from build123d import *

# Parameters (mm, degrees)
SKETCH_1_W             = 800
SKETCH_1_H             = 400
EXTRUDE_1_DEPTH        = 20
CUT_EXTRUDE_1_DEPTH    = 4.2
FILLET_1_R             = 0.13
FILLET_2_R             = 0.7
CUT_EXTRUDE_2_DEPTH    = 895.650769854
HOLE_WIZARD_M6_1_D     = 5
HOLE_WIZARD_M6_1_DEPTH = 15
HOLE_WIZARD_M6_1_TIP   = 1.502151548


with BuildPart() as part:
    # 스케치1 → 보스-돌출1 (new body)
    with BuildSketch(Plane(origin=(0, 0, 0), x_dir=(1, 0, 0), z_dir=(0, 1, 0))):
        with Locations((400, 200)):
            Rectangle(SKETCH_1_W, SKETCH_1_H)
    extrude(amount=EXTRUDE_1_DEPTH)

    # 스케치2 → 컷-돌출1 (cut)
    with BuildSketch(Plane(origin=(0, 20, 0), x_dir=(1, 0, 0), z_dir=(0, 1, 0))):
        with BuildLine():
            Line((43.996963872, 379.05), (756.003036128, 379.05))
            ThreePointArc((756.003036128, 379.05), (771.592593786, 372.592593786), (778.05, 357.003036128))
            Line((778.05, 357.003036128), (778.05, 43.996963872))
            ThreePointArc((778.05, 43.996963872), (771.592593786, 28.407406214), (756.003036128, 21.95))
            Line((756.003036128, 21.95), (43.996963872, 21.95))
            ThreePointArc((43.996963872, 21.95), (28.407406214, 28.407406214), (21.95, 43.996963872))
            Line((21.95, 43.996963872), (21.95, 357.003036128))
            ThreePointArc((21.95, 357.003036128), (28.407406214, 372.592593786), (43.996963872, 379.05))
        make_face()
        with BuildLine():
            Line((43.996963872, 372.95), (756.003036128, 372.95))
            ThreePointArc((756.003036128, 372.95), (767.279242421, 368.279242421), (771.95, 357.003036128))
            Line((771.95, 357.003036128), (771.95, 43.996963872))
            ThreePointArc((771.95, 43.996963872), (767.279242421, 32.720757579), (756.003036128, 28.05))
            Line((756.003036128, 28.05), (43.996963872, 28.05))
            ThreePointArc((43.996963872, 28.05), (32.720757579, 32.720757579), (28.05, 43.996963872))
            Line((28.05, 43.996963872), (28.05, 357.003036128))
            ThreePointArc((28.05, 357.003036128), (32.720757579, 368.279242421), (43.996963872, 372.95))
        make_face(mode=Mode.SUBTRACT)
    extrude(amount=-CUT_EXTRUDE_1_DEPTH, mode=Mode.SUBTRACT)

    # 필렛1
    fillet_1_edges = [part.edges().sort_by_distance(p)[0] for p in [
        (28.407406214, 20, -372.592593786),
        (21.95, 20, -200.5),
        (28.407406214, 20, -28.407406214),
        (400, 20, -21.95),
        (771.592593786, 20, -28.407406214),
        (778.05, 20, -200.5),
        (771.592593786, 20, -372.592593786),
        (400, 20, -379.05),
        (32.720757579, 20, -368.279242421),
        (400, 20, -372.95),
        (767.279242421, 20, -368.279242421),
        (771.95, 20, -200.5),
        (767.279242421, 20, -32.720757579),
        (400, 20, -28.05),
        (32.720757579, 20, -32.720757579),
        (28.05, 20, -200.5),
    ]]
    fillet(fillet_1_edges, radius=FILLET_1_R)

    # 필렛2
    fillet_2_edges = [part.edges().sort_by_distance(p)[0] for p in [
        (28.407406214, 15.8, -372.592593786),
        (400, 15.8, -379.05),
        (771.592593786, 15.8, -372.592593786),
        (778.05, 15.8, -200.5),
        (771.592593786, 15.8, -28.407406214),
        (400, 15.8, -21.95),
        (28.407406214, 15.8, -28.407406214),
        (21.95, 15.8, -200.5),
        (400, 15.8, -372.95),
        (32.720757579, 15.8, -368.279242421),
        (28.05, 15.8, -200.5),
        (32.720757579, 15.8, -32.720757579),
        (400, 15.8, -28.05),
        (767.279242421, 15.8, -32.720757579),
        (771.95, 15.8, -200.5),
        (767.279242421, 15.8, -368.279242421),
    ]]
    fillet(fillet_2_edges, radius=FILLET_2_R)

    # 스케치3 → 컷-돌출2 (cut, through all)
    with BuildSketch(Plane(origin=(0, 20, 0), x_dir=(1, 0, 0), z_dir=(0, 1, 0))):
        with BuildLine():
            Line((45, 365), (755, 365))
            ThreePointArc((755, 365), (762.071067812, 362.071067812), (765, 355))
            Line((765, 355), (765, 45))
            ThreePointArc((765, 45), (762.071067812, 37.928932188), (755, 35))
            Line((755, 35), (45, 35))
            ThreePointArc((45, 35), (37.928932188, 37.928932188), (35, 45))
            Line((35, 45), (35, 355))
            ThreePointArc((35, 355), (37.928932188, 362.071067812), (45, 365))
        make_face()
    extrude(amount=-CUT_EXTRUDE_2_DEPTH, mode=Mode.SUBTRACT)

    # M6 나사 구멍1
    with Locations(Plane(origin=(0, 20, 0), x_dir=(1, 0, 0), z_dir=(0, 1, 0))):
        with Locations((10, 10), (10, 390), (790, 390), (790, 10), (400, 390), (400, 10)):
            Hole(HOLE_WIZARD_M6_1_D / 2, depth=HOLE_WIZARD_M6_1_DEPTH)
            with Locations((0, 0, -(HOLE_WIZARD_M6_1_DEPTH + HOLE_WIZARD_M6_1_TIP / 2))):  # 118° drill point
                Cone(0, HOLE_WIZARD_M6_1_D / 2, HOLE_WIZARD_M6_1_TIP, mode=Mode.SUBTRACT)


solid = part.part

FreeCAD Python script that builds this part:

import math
import FreeCAD as App
import Part
import Sketcher

V = App.Vector


def edges_at(feature, points):
    """Names of the edges that pass closest to the given points."""
    edges = feature.Shape.Edges
    near = lambda p: min(range(len(edges)), key=lambda i: edges[i].distToShape(Part.Vertex(*p))[0])
    return sorted({f"Edge{near(p) + 1}" for p in points})

doc = App.newDocument("Part")
body = doc.addObject("PartDesign::Body", "Body")

# Sketch on XZ plane
sketch1 = doc.addObject("Sketcher::SketchObject", "Sketch")
body.addObject(sketch1)
sketch1.AttachmentSupport = (doc.XZ_Plane, [""])
sketch1.MapMode = "FlatFace"
sketch1.addGeometry([
    Part.LineSegment(V(0, -400, 0), V(0, 0, 0)),
    Part.LineSegment(V(0, 0, 0), V(800, 0, 0)),
    Part.LineSegment(V(800, 0, 0), V(800, -400, 0)),
    Part.LineSegment(V(800, -400, 0), V(0, -400, 0)),
], False)
sketch1.addConstraint([
    Sketcher.Constraint("Coincident", 0, 2, 1, 1),
    Sketcher.Constraint("Coincident", 1, 2, 2, 1),
    Sketcher.Constraint("Coincident", 2, 2, 3, 1),
    Sketcher.Constraint("Coincident", 3, 2, 0, 1),
    Sketcher.Constraint("Vertical", 0),
    Sketcher.Constraint("Horizontal", 1),
    Sketcher.Constraint("Vertical", 2),
    Sketcher.Constraint("Horizontal", 3),
    Sketcher.Constraint("Coincident", 0, 2, -1, 1),
    Sketcher.Constraint("DistanceX", 1, 1, 1, 2, 800.0),
    Sketcher.Constraint("DistanceY", 0, 1, 0, 2, 400.0),
])
pad1 = doc.addObject("PartDesign::Pad", "Pad")
body.addObject(pad1)
pad1.Profile = sketch1
pad1.Length = 20
pad1.Reversed = True

# Sketch on XZ plane
sketch2 = doc.addObject("Sketcher::SketchObject", "Sketch001")
body.addObject(sketch2)
sketch2.AttachmentSupport = (doc.XZ_Plane, [""])
sketch2.MapMode = "FlatFace"
sketch2.AttachmentOffset = App.Placement(V(0, 0, -20), App.Rotation())
sketch2.addGeometry([
    Part.LineSegment(V(756.003036, -379.05, 0), V(43.996964, -379.05, 0)),  # 0
    Part.ArcOfCircle(Part.Circle(V(43.996964, -357.003036, 0), V(0, 0, 1), 22.046964), math.radians(-180), math.radians(-90)),  # 1
    Part.LineSegment(V(21.95, -357.003036, 0), V(21.95, -43.996964, 0)),  # 2
    Part.ArcOfCircle(Part.Circle(V(43.996964, -43.996964, 0), V(0, 0, 1), 22.046964), math.radians(90), math.radians(180)),  # 3
    Part.LineSegment(V(43.996964, -21.95, 0), V(756.003036, -21.95, 0)),  # 4
    Part.ArcOfCircle(Part.Circle(V(756.003036, -43.996964, 0), V(0, 0, 1), 22.046964), math.radians(0), math.radians(90)),  # 5
    Part.LineSegment(V(778.05, -43.996964, 0), V(778.05, -357.003036, 0)),  # 6
    Part.ArcOfCircle(Part.Circle(V(756.003036, -357.003036, 0), V(0, 0, 1), 22.046964), math.radians(-90), math.radians(0)),  # 7
    Part.LineSegment(V(43.996964, -372.95, 0), V(756.003036, -372.95, 0)),  # 8
    Part.ArcOfCircle(Part.Circle(V(756.003036, -357.003036, 0), V(0, 0, 1), 15.946964), math.radians(-90), math.radians(0)),  # 9
    Part.LineSegment(V(771.95, -357.003036, 0), V(771.95, -43.996964, 0)),  # 10
    Part.ArcOfCircle(Part.Circle(V(756.003036, -43.996964, 0), V(0, 0, 1), 15.946964), math.radians(0), math.radians(90)),  # 11
    Part.LineSegment(V(756.003036, -28.05, 0), V(43.996964, -28.05, 0)),  # 12
    Part.ArcOfCircle(Part.Circle(V(43.996964, -43.996964, 0), V(0, 0, 1), 15.946964), math.radians(90), math.radians(180)),  # 13
    Part.LineSegment(V(28.05, -43.996964, 0), V(28.05, -357.003036, 0)),  # 14
    Part.ArcOfCircle(Part.Circle(V(43.996964, -357.003036, 0), V(0, 0, 1), 15.946964), math.radians(-180), math.radians(-90)),  # 15
], False)
sketch2.addConstraint([
    Sketcher.Constraint("Tangent", 0, 2, 1, 2),
    Sketcher.Constraint("Tangent", 1, 1, 2, 1),
    Sketcher.Constraint("Tangent", 2, 2, 3, 2),
    Sketcher.Constraint("Tangent", 3, 1, 4, 1),
    Sketcher.Constraint("Tangent", 4, 2, 5, 2),
    Sketcher.Constraint("Tangent", 5, 1, 6, 1),
    Sketcher.Constraint("Tangent", 6, 2, 7, 2),
    Sketcher.Constraint("Tangent", 7, 1, 0, 1),
    Sketcher.Constraint("Tangent", 8, 2, 9, 1),
    Sketcher.Constraint("Tangent", 9, 2, 10, 1),
    Sketcher.Constraint("Tangent", 10, 2, 11, 1),
    Sketcher.Constraint("Tangent", 11, 2, 12, 1),
    Sketcher.Constraint("Tangent", 12, 2, 13, 1),
    Sketcher.Constraint("Tangent", 13, 2, 14, 1),
    Sketcher.Constraint("Tangent", 14, 2, 15, 1),
    Sketcher.Constraint("Tangent", 15, 2, 8, 1),
    Sketcher.Constraint("Horizontal", 0),
    Sketcher.Constraint("Vertical", 2),
    Sketcher.Constraint("Horizontal", 4),
    Sketcher.Constraint("Vertical", 6),
    Sketcher.Constraint("Horizontal", 8),
    Sketcher.Constraint("Vertical", 10),
    Sketcher.Constraint("Horizontal", 12),
    Sketcher.Constraint("Vertical", 14),
    Sketcher.Constraint("Coincident", 9, 3, 7, 3),
    Sketcher.Constraint("Coincident", 11, 3, 5, 3),
    Sketcher.Constraint("Coincident", 13, 3, 3, 3),
    Sketcher.Constraint("Equal", 1, 3),
    Sketcher.Constraint("Equal", 3, 5),
    Sketcher.Constraint("Equal", 5, 7),
    Sketcher.Constraint("Equal", 13, 15),
    Sketcher.Constraint("DistanceY", 7, 1, 8, 2, 6.1),
    Sketcher.Constraint("DistanceY", 0, 2, -1, 1, 379.05),
    Sketcher.Constraint("DistanceX", -1, 1, 1, 1, 21.95),
    Sketcher.Constraint("DistanceY", 3, 1, -1, 1, 21.95),
    Sketcher.Constraint("DistanceX", -1, 1, 5, 1, 778.05),
    Sketcher.Constraint("Radius", 1, 22.046964),
])
pocket1 = doc.addObject("PartDesign::Pocket", "Pocket")
body.addObject(pocket1)
pocket1.Profile = sketch2
pocket1.Length = 4.2
pocket1.Reversed = True
doc.recompute()

fillet = doc.addObject("PartDesign::Fillet", "Fillet")
body.addObject(fillet)
fillet.Base = (pocket1, edges_at(pocket1, [
    (28.407, 20, -372.593),
    (21.95, 20, -200.5),
    (28.407, 20, -28.407),
    (400, 20, -21.95),
    (771.593, 20, -28.407),
    (778.05, 20, -200.5),
    (771.593, 20, -372.593),
    (400, 20, -379.05),
    (32.721, 20, -368.279),
    (400, 20, -372.95),
    (767.279, 20, -368.279),
    (771.95, 20, -200.5),
    (767.279, 20, -32.721),
    (400, 20, -28.05),
    (32.721, 20, -32.721),
    (28.05, 20, -200.5),
]))
fillet.Radius = 0.13
doc.recompute()

fillet2 = doc.addObject("PartDesign::Fillet", "Fillet001")
body.addObject(fillet2)
fillet2.Base = (fillet, edges_at(fillet, [
    (28.407, 15.8, -372.593),
    (400, 15.8, -379.05),
    (771.593, 15.8, -372.593),
    (778.05, 15.8, -200.5),
    (771.593, 15.8, -28.407),
    (400, 15.8, -21.95),
    (28.407, 15.8, -28.407),
    (21.95, 15.8, -200.5),
    (400, 15.8, -372.95),
    (32.721, 15.8, -368.279),
    (28.05, 15.8, -200.5),
    (32.721, 15.8, -32.721),
    (400, 15.8, -28.05),
    (767.279, 15.8, -32.721),
    (771.95, 15.8, -200.5),
    (767.279, 15.8, -368.279),
]))
fillet2.Radius = 0.7

# Sketch on XZ plane
sketch3 = doc.addObject("Sketcher::SketchObject", "Sketch002")
body.addObject(sketch3)
sketch3.AttachmentSupport = (doc.XZ_Plane, [""])
sketch3.MapMode = "FlatFace"
sketch3.AttachmentOffset = App.Placement(V(0, 0, -20), App.Rotation())
sketch3.addGeometry([
    Part.LineSegment(V(755, -365, 0), V(45, -365, 0)),  # 0
    Part.ArcOfCircle(Part.Circle(V(45, -355, 0), V(0, 0, 1), 10), math.radians(180), math.radians(270)),  # 1
    Part.LineSegment(V(35, -355, 0), V(35, -45, 0)),  # 2
    Part.ArcOfCircle(Part.Circle(V(45, -45, 0), V(0, 0, 1), 10), math.radians(90), math.radians(180)),  # 3
    Part.LineSegment(V(45, -35, 0), V(755, -35, 0)),  # 4
    Part.ArcOfCircle(Part.Circle(V(755, -45, 0), V(0, 0, 1), 10), math.radians(0), math.radians(90)),  # 5
    Part.LineSegment(V(765, -45, 0), V(765, -355, 0)),  # 6
    Part.ArcOfCircle(Part.Circle(V(755, -355, 0), V(0, 0, 1), 10), math.radians(-90), math.radians(0)),  # 7
], False)
sketch3.addConstraint([
    Sketcher.Constraint("Tangent", 0, 2, 1, 2),
    Sketcher.Constraint("Tangent", 1, 1, 2, 1),
    Sketcher.Constraint("Tangent", 2, 2, 3, 2),
    Sketcher.Constraint("Tangent", 3, 1, 4, 1),
    Sketcher.Constraint("Tangent", 4, 2, 5, 2),
    Sketcher.Constraint("Tangent", 5, 1, 6, 1),
    Sketcher.Constraint("Tangent", 6, 2, 7, 2),
    Sketcher.Constraint("Tangent", 7, 1, 0, 1),
    Sketcher.Constraint("Horizontal", 0),
    Sketcher.Constraint("Vertical", 2),
    Sketcher.Constraint("Horizontal", 4),
    Sketcher.Constraint("Vertical", 6),
    Sketcher.Constraint("Equal", 1, 3),
    Sketcher.Constraint("Equal", 3, 5),
    Sketcher.Constraint("Equal", 5, 7),
    Sketcher.Constraint("Radius", 1, 10.0),
    Sketcher.Constraint("DistanceX", 0, 2, 0, 1, 710.0),
    Sketcher.Constraint("DistanceY", 2, 1, 2, 2, 310.0),
    Sketcher.Constraint("DistanceX", -1, 1, 1, 3, 45.0),
    Sketcher.Constraint("DistanceY", 1, 3, -1, 1, 355.0),
])
pocket2 = doc.addObject("PartDesign::Pocket", "Pocket001")
body.addObject(pocket2)
pocket2.Profile = sketch3
pocket2.Type = "ThroughAll"
pocket2.Reversed = True

# Sketch on XZ plane
sketch4 = doc.addObject("Sketcher::SketchObject", "Sketch003")
body.addObject(sketch4)
sketch4.AttachmentSupport = (doc.XZ_Plane, [""])
sketch4.MapMode = "FlatFace"
sketch4.AttachmentOffset = App.Placement(V(0, 0, -20), App.Rotation())
sketch4.addGeometry([
    Part.Circle(V(10, -10, 0), V(0, 0, 1), 2.5),  # 0
    Part.Circle(V(10, -390, 0), V(0, 0, 1), 2.5),  # 1
    Part.Circle(V(790, -390, 0), V(0, 0, 1), 2.5),  # 2
    Part.Circle(V(790, -10, 0), V(0, 0, 1), 2.5),  # 3
    Part.Circle(V(400, -390, 0), V(0, 0, 1), 2.5),  # 4
    Part.Circle(V(400, -10, 0), V(0, 0, 1), 2.5),  # 5
], False)
sketch4.addConstraint([
    Sketcher.Constraint("Equal", 0, 1),
    Sketcher.Constraint("Equal", 1, 2),
    Sketcher.Constraint("Equal", 2, 3),
    Sketcher.Constraint("Equal", 3, 4),
    Sketcher.Constraint("Equal", 4, 5),
    Sketcher.Constraint("Horizontal", 1, 3, 2, 3),
    Sketcher.Constraint("Horizontal", 0, 3, 3, 3),
    Sketcher.Constraint("Horizontal", 2, 3, 4, 3),
    Sketcher.Constraint("Horizontal", 3, 3, 5, 3),
    Sketcher.Constraint("Vertical", 0, 3, 1, 3),
    Sketcher.Constraint("Vertical", 2, 3, 3, 3),
    Sketcher.Constraint("Vertical", 4, 3, 5, 3),
    Sketcher.Constraint("Diameter", 0, 5.0),
    Sketcher.Constraint("DistanceX", -1, 1, 0, 3, 10.0),
    Sketcher.Constraint("DistanceY", 0, 3, -1, 1, 10.0),
    Sketcher.Constraint("DistanceY", 1, 3, -1, 1, 390.0),
    Sketcher.Constraint("DistanceX", -1, 1, 2, 3, 790.0),
    Sketcher.Constraint("DistanceX", -1, 1, 4, 3, 400.0),
])
doc.recompute()
hole = doc.addObject("PartDesign::Hole", "Hole")
body.addObject(hole)
hole.Profile = sketch4
hole.ThreadType = "None"
hole.Diameter = 5
hole.DepthType = "Dimension"
hole.Depth = 15
hole.DrillPoint = "Angled"
hole.DrillPointAngle = 118
hole.Reversed = True

doc.recompute()
